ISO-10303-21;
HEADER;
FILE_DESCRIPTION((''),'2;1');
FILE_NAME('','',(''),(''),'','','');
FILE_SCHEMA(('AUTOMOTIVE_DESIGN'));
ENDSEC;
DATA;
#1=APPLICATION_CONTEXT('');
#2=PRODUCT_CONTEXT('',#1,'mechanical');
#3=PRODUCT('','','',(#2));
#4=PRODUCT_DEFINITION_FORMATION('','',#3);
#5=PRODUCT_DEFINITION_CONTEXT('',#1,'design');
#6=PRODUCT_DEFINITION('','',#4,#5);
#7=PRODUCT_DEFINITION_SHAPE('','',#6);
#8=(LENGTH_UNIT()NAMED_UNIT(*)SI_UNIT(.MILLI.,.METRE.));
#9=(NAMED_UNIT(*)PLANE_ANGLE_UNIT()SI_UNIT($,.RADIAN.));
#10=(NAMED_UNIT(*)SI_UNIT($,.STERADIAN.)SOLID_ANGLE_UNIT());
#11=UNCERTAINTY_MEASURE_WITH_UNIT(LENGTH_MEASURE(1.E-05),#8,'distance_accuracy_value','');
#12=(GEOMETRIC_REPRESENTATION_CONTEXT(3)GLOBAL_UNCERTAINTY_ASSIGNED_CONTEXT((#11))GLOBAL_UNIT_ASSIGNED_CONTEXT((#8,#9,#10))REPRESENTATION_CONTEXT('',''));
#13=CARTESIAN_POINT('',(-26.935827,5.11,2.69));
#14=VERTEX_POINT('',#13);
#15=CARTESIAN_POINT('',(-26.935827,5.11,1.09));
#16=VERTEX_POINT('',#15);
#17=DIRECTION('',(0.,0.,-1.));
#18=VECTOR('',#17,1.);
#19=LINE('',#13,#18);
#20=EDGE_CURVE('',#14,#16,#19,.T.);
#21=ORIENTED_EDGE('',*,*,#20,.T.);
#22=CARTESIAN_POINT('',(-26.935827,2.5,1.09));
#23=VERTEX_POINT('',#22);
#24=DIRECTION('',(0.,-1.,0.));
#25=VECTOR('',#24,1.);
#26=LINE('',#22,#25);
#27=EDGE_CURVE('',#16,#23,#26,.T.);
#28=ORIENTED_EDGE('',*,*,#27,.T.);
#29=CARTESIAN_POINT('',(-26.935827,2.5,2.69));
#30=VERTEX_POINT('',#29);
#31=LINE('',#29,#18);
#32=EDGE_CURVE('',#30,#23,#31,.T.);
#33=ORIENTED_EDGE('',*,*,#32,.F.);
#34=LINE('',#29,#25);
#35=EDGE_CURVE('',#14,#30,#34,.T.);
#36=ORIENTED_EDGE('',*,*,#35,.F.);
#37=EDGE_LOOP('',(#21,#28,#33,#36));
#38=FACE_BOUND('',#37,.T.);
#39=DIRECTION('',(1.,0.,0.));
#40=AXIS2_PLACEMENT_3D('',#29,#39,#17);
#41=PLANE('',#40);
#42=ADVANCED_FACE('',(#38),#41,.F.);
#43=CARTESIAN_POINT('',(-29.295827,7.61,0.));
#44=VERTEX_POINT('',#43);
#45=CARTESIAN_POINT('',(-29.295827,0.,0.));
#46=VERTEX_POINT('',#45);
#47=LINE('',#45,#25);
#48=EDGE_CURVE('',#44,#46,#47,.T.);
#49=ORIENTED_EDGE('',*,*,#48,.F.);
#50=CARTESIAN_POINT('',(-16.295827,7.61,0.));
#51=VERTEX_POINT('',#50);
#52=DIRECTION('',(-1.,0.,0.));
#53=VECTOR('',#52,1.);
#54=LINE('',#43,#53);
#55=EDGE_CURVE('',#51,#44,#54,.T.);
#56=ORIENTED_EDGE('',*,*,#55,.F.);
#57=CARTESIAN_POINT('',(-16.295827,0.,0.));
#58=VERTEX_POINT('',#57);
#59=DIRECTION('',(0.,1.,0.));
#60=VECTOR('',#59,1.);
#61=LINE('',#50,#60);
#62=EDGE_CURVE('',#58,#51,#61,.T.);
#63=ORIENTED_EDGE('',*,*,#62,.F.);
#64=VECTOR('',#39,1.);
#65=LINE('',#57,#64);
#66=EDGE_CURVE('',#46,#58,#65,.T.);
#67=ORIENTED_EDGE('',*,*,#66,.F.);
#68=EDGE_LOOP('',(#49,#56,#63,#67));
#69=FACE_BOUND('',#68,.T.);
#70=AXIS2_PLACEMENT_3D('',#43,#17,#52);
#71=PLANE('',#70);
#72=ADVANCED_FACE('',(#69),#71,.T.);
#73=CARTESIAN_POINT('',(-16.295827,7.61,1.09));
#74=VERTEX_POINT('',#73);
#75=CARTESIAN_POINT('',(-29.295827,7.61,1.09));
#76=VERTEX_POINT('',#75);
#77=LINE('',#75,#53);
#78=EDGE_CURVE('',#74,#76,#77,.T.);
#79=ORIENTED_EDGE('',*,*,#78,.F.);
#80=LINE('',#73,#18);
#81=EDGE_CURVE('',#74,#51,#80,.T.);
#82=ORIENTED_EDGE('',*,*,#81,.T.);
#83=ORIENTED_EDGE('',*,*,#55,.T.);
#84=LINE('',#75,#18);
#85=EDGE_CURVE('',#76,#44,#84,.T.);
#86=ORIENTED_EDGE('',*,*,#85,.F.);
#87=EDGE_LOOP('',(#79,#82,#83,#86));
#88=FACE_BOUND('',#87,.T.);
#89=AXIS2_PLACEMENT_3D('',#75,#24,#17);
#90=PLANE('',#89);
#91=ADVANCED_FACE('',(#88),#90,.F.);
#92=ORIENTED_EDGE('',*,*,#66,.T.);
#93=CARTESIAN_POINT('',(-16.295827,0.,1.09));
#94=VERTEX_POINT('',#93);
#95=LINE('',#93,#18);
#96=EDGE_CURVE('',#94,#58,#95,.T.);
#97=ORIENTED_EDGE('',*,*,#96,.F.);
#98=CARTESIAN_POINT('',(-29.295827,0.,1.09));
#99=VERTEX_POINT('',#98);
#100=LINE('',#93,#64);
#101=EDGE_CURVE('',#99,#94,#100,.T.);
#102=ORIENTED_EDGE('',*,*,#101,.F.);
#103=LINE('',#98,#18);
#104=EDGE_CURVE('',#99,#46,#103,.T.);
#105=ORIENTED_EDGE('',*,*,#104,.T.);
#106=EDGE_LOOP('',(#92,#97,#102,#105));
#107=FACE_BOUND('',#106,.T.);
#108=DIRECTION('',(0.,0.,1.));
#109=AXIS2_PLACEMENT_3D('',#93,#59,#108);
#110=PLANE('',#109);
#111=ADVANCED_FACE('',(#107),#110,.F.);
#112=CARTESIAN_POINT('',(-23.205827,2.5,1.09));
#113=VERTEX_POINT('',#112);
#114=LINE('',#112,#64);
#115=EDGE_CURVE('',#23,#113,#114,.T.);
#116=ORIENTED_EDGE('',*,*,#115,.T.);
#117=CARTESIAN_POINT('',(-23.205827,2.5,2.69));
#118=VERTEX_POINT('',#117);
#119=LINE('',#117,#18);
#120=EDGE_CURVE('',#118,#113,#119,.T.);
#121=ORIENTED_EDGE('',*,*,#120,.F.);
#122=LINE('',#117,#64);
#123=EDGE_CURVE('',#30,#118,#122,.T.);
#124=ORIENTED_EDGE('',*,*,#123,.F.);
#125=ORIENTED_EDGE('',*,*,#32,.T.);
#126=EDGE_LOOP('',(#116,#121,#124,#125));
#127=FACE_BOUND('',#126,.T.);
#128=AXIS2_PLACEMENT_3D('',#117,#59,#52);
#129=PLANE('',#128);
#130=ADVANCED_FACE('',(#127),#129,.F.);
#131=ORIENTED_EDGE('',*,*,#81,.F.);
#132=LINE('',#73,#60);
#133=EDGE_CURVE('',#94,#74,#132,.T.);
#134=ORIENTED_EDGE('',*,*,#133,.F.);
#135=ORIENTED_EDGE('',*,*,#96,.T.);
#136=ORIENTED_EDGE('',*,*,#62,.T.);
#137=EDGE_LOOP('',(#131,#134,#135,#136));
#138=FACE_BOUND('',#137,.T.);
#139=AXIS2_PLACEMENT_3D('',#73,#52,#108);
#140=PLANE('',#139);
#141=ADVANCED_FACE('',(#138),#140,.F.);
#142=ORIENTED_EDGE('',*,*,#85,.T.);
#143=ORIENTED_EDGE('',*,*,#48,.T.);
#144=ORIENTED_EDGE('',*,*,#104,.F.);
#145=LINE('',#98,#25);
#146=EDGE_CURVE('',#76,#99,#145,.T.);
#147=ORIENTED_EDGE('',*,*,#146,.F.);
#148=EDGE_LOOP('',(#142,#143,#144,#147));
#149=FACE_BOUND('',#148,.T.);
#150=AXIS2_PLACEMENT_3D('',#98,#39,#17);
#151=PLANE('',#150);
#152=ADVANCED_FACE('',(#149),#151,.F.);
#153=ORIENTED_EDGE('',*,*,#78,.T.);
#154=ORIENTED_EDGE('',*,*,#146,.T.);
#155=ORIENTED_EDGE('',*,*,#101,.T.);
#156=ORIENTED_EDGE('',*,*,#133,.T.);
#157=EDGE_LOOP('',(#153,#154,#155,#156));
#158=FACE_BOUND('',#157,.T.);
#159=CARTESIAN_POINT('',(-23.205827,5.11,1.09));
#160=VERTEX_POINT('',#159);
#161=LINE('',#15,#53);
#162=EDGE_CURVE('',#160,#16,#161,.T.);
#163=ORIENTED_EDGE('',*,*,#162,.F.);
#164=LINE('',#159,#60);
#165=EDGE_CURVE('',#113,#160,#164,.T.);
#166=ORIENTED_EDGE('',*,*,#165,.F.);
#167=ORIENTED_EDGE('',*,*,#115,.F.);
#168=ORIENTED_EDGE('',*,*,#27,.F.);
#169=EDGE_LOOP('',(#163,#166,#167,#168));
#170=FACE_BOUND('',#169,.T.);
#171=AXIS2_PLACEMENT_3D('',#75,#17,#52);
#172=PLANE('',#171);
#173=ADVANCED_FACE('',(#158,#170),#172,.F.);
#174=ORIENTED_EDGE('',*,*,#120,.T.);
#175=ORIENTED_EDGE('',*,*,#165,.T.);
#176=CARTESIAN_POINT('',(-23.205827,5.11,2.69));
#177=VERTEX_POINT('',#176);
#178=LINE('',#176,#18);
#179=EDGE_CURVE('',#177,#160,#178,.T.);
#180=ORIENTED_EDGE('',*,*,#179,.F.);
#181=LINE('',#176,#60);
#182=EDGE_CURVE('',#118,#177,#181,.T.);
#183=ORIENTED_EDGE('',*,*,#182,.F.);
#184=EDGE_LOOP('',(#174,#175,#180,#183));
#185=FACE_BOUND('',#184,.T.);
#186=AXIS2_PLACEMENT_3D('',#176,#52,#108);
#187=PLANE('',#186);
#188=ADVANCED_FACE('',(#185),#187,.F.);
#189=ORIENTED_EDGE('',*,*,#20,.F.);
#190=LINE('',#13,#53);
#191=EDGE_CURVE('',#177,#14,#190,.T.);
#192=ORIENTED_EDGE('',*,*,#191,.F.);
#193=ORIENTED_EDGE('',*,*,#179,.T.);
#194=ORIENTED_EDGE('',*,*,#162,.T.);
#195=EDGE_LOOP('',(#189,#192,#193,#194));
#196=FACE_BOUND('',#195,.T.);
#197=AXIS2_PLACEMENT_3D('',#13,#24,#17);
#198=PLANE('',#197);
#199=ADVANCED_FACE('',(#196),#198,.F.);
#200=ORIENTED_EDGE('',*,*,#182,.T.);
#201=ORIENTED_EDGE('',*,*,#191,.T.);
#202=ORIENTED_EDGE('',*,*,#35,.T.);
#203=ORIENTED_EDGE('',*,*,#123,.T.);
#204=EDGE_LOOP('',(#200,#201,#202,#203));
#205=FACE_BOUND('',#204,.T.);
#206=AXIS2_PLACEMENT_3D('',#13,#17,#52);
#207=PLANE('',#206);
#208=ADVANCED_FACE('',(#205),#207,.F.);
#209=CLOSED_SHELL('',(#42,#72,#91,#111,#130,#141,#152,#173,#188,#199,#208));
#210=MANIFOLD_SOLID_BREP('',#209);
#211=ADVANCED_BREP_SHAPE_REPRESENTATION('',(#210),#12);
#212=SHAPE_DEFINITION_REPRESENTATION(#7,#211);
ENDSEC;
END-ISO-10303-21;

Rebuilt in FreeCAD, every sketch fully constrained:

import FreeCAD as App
import Part
import Sketcher
from FreeCAD import Vector
Q = App.Units.Quantity

doc = App.newDocument("Part")
body = doc.addObject("PartDesign::Body", "Body")

# Sketch on XY plane
sketch1 = body.newObject("Sketcher::SketchObject", "Sketch")
sketch1.AttachmentSupport = (doc.getObject("XY_Plane"), [""])
sketch1.MapMode = "FlatFace"
sketch1.addGeometry(Part.LineSegment(Vector(-29, 8, 0), Vector(-29, 0, 0)), False)
sketch1.addGeometry(Part.LineSegment(Vector(-29, 0, 0), Vector(-16, 0, 0)), False)
sketch1.addGeometry(Part.LineSegment(Vector(-16, 0, 0), Vector(-16, 8, 0)), False)
sketch1.addGeometry(Part.LineSegment(Vector(-16, 8, 0), Vector(-29, 8, 0)), False)
sketch1.addConstraint(Sketcher.Constraint("Coincident", 0, 2, 1, 1))
sketch1.addConstraint(Sketcher.Constraint("Coincident", 1, 2, 2, 1))
sketch1.addConstraint(Sketcher.Constraint("Coincident", 2, 2, 3, 1))
sketch1.addConstraint(Sketcher.Constraint("Coincident", 3, 2, 0, 1))
sketch1.addConstraint(Sketcher.Constraint("Vertical", 0))
sketch1.addConstraint(Sketcher.Constraint("Horizontal", 1))
sketch1.addConstraint(Sketcher.Constraint("Vertical", 2))
sketch1.addConstraint(Sketcher.Constraint("Horizontal", 3))
sketch1.addConstraint(Sketcher.Constraint("PointOnObject", 0, 2, -1))
sketch1.addConstraint(Sketcher.Constraint("DistanceX", 1, 1, 1, 2, Q("13 mm")))
sketch1.addConstraint(Sketcher.Constraint("DistanceY", 0, 2, 0, 1, Q("7.61 mm")))
sketch1.addConstraint(Sketcher.Constraint("DistanceX", 0, 2, -1, 1, Q("29.295827 mm")))
pad1 = body.newObject("PartDesign::Pad", "Pad")
pad1.Profile = sketch1
pad1.Length = 1.09

# Sketch on XY plane
sketch2 = body.newObject("Sketcher::SketchObject", "Sketch001")
sketch2.AttachmentSupport = (doc.getObject("XY_Plane"), [""])
sketch2.MapMode = "FlatFace"
sketch2.AttachmentOffset = App.Placement(Vector(0, 0, 1.09), App.Rotation())
sketch2.addGeometry(Part.LineSegment(Vector(-26.9, 5.1, 0), Vector(-26.9, 2.5, 0)), False)
sketch2.addGeometry(Part.LineSegment(Vector(-26.9, 2.5, 0), Vector(-23.2, 2.5, 0)), False)
sketch2.addGeometry(Part.LineSegment(Vector(-23.2, 2.5, 0), Vector(-23.2, 5.1, 0)), False)
sketch2.addGeometry(Part.LineSegment(Vector(-23.2, 5.1, 0), Vector(-26.9, 5.1, 0)), False)
sketch2.addConstraint(Sketcher.Constraint("Coincident", 0, 2, 1, 1))
sketch2.addConstraint(Sketcher.Constraint("Coincident", 1, 2, 2, 1))
sketch2.addConstraint(Sketcher.Constraint("Coincident", 2, 2, 3, 1))
sketch2.addConstraint(Sketcher.Constraint("Coincident", 3, 2, 0, 1))
sketch2.addConstraint(Sketcher.Constraint("Vertical", 0))
sketch2.addConstraint(Sketcher.Constraint("Horizontal", 1))
sketch2.addConstraint(Sketcher.Constraint("Vertical", 2))
sketch2.addConstraint(Sketcher.Constraint("Horizontal", 3))
sketch2.addConstraint(Sketcher.Constraint("DistanceX", 1, 1, 1, 2, Q("3.73 mm")))
sketch2.addConstraint(Sketcher.Constraint("DistanceY", 0, 2, 0, 1, Q("2.61 mm")))
sketch2.addConstraint(Sketcher.Constraint("DistanceY", -1, 1, 0, 2, Q("2.5 mm")))
sketch2.addConstraint(Sketcher.Constraint("DistanceX", 0, 2, -1, 1, Q("26.935827 mm")))
pad2 = body.newObject("PartDesign::Pad", "Pad001")
pad2.Profile = sketch2
pad2.Length = 1.6

doc.recompute()
